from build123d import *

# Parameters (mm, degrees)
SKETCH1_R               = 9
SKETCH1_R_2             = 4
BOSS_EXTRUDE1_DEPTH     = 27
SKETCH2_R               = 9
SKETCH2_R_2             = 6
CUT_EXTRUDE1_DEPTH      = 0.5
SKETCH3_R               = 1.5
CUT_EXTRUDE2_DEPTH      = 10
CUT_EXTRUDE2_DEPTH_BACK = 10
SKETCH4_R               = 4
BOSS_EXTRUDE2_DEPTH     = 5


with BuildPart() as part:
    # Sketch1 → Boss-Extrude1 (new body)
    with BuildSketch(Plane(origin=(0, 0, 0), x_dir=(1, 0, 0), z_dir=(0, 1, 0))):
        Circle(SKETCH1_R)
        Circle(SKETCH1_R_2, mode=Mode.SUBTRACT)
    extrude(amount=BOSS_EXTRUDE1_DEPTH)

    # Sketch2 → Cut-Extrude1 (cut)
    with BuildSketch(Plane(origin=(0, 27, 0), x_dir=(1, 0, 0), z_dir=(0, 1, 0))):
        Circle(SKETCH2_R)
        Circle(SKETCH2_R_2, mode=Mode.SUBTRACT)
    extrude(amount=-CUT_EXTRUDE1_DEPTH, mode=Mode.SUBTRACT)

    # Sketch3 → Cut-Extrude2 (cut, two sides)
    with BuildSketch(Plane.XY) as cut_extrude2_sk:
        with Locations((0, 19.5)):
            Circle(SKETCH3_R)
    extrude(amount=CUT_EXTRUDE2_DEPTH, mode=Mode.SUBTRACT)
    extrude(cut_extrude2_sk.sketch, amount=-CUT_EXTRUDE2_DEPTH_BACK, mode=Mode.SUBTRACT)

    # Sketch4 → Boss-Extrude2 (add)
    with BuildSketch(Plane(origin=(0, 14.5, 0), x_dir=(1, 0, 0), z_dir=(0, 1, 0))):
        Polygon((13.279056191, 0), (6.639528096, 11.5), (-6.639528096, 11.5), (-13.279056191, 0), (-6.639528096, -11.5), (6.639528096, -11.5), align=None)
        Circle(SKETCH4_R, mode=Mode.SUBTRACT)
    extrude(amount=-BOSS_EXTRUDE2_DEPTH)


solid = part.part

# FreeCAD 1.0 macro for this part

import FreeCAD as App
import Part
import Sketcher
from FreeCAD import Vector
Q = App.Units.Quantity

doc = App.newDocument("Part")
body = doc.addObject("PartDesign::Body", "Body")

# Sketch on XZ plane
sketch1 = doc.addObject("Sketcher::SketchObject", "Sketch")
body.addObject(sketch1)
sketch1.AttachmentSupport = (doc.XZ_Plane, [""])
sketch1.MapMode = "FlatFace"
sketch1.addGeometry([
    Part.Circle(Vector(0, 0, 0), Vector(0, 0, 1), 9),
    Part.Circle(Vector(0, 0, 0), Vector(0, 0, 1), 4),
], False)
sketch1.addConstraint([
    Sketcher.Constraint("Coincident", 0, 3, -1, 1),
    Sketcher.Constraint("Coincident", 1, 3, -1, 1),
    Sketcher.Constraint("Diameter", 0, Q("18 mm")),
    Sketcher.Constraint("Diameter", 1, Q("8 mm")),
])
pad1 = doc.addObject("PartDesign::Pad", "Pad")
body.addObject(pad1)
pad1.Profile = sketch1
pad1.Length = 27
pad1.Reversed = True

# Sketch on XZ plane
sketch2 = doc.addObject("Sketcher::SketchObject", "Sketch001")
body.addObject(sketch2)
sketch2.AttachmentSupport = (doc.XZ_Plane, [""])
sketch2.MapMode = "FlatFace"
sketch2.AttachmentOffset = App.Placement(Vector(0, 0, -27), App.Rotation())
sketch2.addGeometry([
    Part.Circle(Vector(0, 0, 0), Vector(0, 0, 1), 9),
    Part.Circle(Vector(0, 0, 0), Vector(0, 0, 1), 6),
], False)
sketch2.addConstraint([
    Sketcher.Constraint("Coincident", 0, 3, -1, 1),
    Sketcher.Constraint("Coincident", 1, 3, -1, 1),
    Sketcher.Constraint("Diameter", 0, Q("18 mm")),
    Sketcher.Constraint("Diameter", 1, Q("12 mm")),
])
pocket1 = doc.addObject("PartDesign::Pocket", "Pocket")
body.addObject(pocket1)
pocket1.Profile = sketch2
pocket1.Length = 0.5
pocket1.Reversed = True

# Sketch on XY plane
sketch3 = doc.addObject("Sketcher::SketchObject", "Sketch002")
body.addObject(sketch3)
sketch3.AttachmentSupport = (doc.XY_Plane, [""])
sketch3.MapMode = "FlatFace"
sketch3.addGeometry(Part.Circle(Vector(0, 19.5, 0), Vector(0, 0, 1), 1.5), False)
sketch3.addConstraint([
    Sketcher.Constraint("PointOnObject", 0, 3, -2),
    Sketcher.Constraint("Diameter", 0, Q("3 mm")),
    Sketcher.Constraint("DistanceY", -1, 1, 0, 3, Q("19.5 mm")),
])
pocket2 = doc.addObject("PartDesign::Pocket", "Pocket001")
body.addObject(pocket2)
pocket2.Profile = sketch3
pocket2.Type = "ThroughAll"
pocket2.Midplane = True

# Sketch on XZ plane
sketch4 = doc.addObject("Sketcher::SketchObject", "Sketch003")
body.addObject(sketch4)
sketch4.AttachmentSupport = (doc.XZ_Plane, [""])
sketch4.MapMode = "FlatFace"
sketch4.AttachmentOffset = App.Placement(Vector(0, 0, -14.5), App.Rotation())
sketch4.addGeometry([
    Part.LineSegment(Vector(13.3, 0, 0), Vector(6.6, -11.5, 0)),  # 0
    Part.LineSegment(Vector(6.6, -11.5, 0), Vector(-6.6, -11.5, 0)),  # 1
    Part.LineSegment(Vector(-6.6, -11.5, 0), Vector(-13.3, 0, 0)),  # 2
    Part.LineSegment(Vector(-13.3, 0, 0), Vector(-6.6, 11.5, 0)),  # 3
    Part.LineSegment(Vector(-6.6, 11.5, 0), Vector(6.6, 11.5, 0)),  # 4
    Part.LineSegment(Vector(6.6, 11.5, 0), Vector(13.3, 0, 0)),  # 5
    Part.Circle(Vector(0, 0, 0), Vector(0, 0, 1), 4),  # 6
], False)
sketch4.addConstraint([
    Sketcher.Constraint("Coincident", 0, 2, 1, 1),
    Sketcher.Constraint("Coincident", 1, 2, 2, 1),
    Sketcher.Constraint("Coincident", 2, 2, 3, 1),
    Sketcher.Constraint("Coincident", 3, 2, 4, 1),
    Sketcher.Constraint("Coincident", 4, 2, 5, 1),
    Sketcher.Constraint("Coincident", 5, 2, 0, 1),
    Sketcher.Constraint("Horizontal", 1),
    Sketcher.Constraint("Horizontal", 4),
    Sketcher.Constraint("Coincident", 6, 3, -1, 1),
    Sketcher.Constraint("Symmetric", 0, 2, 3, 2, -1, 1),
    Sketcher.Constraint("Symmetric", 2, 2, 5, 2, -1, 1),
    Sketcher.Constraint("PointOnObject", 2, 2, -1),
    Sketcher.Constraint("Parallel", 2, 5),
    Sketcher.Constraint("Vertical", 1, 2, 3, 2),
    Sketcher.Constraint("Diameter", 6, Q("8 mm")),
    Sketcher.Constraint("Angle", 0, Q("-120 deg")),
    Sketcher.Constraint("DistanceY", 1, 2, 3, 2, Q("23 mm")),
    Sketcher.Constraint("DistanceX", 1, 2, 1, 1, Q("13.279056 mm")),
])
pad2 = doc.addObject("PartDesign::Pad", "Pad001")
body.addObject(pad2)
pad2.Profile = sketch4
pad2.Length = 5

doc.recompute()
